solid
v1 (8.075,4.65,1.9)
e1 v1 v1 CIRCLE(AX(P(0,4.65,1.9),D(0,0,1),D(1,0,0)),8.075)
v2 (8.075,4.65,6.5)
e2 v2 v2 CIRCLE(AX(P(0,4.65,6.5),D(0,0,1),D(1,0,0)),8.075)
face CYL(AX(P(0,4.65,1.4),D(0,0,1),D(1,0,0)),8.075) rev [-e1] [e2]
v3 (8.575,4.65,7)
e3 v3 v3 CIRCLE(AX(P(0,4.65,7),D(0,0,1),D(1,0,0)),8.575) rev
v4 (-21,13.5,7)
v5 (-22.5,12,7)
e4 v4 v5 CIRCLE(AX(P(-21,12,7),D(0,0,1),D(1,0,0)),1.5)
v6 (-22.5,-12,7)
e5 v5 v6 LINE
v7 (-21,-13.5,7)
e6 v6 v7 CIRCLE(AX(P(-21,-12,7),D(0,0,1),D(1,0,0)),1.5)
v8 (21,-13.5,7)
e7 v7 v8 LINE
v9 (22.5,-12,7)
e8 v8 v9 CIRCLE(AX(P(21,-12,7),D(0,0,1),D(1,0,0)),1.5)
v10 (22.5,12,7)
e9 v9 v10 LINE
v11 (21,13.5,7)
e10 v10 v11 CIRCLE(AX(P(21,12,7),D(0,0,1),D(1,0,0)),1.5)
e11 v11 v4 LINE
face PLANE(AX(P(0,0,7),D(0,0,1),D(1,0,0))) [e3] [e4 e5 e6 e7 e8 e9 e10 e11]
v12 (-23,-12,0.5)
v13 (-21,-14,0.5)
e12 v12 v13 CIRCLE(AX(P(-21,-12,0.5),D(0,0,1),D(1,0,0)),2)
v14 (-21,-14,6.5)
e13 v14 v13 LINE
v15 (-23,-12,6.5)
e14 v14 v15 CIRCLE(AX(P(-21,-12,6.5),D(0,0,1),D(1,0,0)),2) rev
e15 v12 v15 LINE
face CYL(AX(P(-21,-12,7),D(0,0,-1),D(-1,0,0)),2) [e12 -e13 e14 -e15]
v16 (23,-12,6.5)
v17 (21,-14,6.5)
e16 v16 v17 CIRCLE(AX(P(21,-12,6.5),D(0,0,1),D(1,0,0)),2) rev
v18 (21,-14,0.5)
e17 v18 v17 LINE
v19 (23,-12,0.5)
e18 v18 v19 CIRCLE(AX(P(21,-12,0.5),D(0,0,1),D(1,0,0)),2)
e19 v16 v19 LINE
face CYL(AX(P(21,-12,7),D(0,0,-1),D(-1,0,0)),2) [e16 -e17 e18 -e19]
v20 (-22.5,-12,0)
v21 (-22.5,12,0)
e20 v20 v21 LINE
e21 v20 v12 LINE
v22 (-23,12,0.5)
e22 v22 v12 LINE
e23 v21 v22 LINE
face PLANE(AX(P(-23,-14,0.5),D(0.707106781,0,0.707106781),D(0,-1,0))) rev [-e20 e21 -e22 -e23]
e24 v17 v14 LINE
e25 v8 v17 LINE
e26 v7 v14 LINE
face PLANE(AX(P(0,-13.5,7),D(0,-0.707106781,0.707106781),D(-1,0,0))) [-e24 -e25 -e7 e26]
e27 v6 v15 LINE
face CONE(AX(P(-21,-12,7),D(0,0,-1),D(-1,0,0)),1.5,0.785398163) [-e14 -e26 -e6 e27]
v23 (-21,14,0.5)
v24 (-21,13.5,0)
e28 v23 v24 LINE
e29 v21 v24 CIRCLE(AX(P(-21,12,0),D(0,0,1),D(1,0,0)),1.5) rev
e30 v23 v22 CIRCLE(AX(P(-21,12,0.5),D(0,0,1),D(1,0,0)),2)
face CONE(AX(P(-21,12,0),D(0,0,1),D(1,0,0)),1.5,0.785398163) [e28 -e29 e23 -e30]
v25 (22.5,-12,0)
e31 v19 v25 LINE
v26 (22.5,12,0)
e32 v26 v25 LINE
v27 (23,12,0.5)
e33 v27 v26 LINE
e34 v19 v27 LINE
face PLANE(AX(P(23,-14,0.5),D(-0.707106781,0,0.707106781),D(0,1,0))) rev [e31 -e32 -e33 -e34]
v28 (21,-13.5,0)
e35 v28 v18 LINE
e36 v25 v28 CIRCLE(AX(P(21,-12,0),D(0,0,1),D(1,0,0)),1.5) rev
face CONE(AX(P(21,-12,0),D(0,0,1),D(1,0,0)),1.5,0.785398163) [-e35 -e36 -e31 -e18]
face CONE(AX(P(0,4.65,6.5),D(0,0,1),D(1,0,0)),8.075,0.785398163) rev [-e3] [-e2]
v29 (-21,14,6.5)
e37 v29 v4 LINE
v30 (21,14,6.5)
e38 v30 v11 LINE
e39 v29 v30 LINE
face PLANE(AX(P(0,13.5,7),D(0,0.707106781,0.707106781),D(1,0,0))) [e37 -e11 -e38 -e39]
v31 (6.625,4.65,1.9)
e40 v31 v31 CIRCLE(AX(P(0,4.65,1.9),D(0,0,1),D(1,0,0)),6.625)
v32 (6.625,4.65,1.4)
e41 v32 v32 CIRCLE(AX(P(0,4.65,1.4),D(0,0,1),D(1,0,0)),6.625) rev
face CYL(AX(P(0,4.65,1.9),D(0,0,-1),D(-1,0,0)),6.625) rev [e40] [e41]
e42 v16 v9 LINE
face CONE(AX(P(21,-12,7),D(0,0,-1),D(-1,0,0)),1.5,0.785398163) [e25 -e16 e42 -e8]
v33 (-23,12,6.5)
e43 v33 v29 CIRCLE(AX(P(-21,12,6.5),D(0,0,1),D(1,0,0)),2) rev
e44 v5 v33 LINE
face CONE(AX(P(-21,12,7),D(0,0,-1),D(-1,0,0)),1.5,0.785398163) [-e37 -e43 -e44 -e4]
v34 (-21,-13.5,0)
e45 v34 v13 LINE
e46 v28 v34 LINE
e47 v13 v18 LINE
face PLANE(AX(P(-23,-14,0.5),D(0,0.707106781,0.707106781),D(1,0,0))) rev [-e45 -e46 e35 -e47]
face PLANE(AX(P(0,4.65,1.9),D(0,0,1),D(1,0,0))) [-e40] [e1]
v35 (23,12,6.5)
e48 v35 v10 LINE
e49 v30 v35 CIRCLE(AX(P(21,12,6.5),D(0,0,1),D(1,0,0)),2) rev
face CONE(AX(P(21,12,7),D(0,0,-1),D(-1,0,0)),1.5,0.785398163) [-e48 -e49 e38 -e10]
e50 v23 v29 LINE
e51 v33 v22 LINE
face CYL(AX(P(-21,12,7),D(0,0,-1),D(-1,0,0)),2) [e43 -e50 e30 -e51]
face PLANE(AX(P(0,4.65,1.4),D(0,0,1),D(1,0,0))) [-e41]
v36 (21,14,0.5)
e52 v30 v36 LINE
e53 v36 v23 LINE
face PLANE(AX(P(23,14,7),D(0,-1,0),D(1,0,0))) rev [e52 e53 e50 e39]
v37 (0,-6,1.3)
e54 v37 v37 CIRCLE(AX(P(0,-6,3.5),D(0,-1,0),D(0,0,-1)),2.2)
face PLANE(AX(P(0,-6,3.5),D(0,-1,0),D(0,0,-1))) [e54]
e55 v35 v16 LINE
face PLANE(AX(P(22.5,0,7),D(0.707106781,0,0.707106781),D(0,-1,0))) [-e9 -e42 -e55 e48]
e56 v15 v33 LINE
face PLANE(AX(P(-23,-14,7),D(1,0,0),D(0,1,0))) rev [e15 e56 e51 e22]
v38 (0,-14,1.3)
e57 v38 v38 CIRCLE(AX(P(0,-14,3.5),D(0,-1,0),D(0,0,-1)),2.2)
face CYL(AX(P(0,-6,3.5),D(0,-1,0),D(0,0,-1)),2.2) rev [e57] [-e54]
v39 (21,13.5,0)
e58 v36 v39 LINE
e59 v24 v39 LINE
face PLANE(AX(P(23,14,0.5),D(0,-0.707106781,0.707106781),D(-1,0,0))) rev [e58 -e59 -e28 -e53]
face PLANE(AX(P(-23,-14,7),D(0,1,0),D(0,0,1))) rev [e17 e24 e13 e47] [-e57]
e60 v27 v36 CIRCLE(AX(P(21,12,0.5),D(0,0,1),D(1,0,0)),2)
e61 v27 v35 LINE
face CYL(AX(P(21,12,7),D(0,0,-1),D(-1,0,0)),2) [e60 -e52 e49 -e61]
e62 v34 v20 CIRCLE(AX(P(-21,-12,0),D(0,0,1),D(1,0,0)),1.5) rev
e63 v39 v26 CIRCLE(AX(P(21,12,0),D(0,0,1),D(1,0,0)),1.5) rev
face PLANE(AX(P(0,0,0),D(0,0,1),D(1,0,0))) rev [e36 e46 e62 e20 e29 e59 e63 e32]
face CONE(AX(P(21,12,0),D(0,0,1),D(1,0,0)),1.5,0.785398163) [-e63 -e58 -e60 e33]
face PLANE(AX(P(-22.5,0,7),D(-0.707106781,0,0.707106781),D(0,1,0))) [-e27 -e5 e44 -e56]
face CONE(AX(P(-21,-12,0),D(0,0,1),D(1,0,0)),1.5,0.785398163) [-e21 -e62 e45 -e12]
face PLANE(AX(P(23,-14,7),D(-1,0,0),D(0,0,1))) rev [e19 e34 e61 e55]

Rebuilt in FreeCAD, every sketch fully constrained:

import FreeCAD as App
import Part
import Sketcher
from FreeCAD import Vector


def edges_at(feature, points):
    """Names of the edges that pass closest to the given points."""
    edges = feature.Shape.Edges
    near = lambda p: min(range(len(edges)), key=lambda i: edges[i].distToShape(Part.Vertex(*p))[0])
    return sorted({f"Edge{near(p) + 1}" for p in points})

doc = App.newDocument("Part")
body = doc.addObject("PartDesign::Body", "Body")

# Sketch on XY plane
sketch1 = body.newObject("Sketcher::SketchObject", "Sketch")
sketch1.AttachmentSupport = (doc.getObject("XY_Plane"), [""])
sketch1.MapMode = "FlatFace"
sketch1.addGeometry([
    Part.LineSegment(Vector(-23, 14, 0), Vector(-23, -14, 0)),
    Part.LineSegment(Vector(-23, -14, 0), Vector(23, -14, 0)),
    Part.LineSegment(Vector(23, -14, 0), Vector(23, 14, 0)),
    Part.LineSegment(Vector(23, 14, 0), Vector(-23, 14, 0)),
], False)
sketch1.addConstraint([
    Sketcher.Constraint("Coincident", 0, 2, 1, 1),
    Sketcher.Constraint("Coincident", 1, 2, 2, 1),
    Sketcher.Constraint("Coincident", 2, 2, 3, 1),
    Sketcher.Constraint("Coincident", 3, 2, 0, 1),
    Sketcher.Constraint("Vertical", 0),
    Sketcher.Constraint("Horizontal", 1),
    Sketcher.Constraint("Vertical", 2),
    Sketcher.Constraint("Horizontal", 3),
    Sketcher.Constraint("Symmetric", 0, 2, 2, 2, -1, 1),
    Sketcher.Constraint("DistanceX", 1, 1, 1, 2, 46.0),
    Sketcher.Constraint("DistanceY", 0, 2, 0, 1, 28.0),
])
pad1 = body.newObject("PartDesign::Pad", "Pad")
pad1.Profile = sketch1
pad1.Length = 7

# Sketch on XY plane
sketch2 = body.newObject("Sketcher::SketchObject", "Sketch001")
sketch2.AttachmentSupport = (doc.getObject("XY_Plane"), [""])
sketch2.MapMode = "FlatFace"
sketch2.AttachmentOffset = App.Placement(Vector(0, 0, 7), App.Rotation())
sketch2.addGeometry(Part.Circle(Vector(0, 5, 0), Vector(0, 0, 1), 8), False)
sketch2.addConstraint([
    Sketcher.Constraint("PointOnObject", 0, 3, -2),
    Sketcher.Constraint("Diameter", 0, 16.15),
    Sketcher.Constraint("DistanceY", -1, 1, 0, 3, 4.65),
])
pocket1 = body.newObject("PartDesign::Pocket", "Pocket")
pocket1.Profile = sketch2
pocket1.Length = 5.6

# Sketch on XY plane
sketch3 = body.newObject("Sketcher::SketchObject", "Sketch002")
sketch3.AttachmentSupport = (doc.getObject("XY_Plane"), [""])
sketch3.MapMode = "FlatFace"
sketch3.AttachmentOffset = App.Placement(Vector(0, 0, 1.9), App.Rotation())
sketch3.addGeometry([
    Part.Circle(Vector(0, 5, 0), Vector(0, 0, 1), 8),
    Part.Circle(Vector(0, 5, 0), Vector(0, 0, 1), 7),
], False)
sketch3.addConstraint([
    Sketcher.Constraint("Coincident", 1, 3, 0, 3),
    Sketcher.Constraint("PointOnObject", 0, 3, -2),
    Sketcher.Constraint("Diameter", 0, 16.15),
    Sketcher.Constraint("Diameter", 1, 13.25),
    Sketcher.Constraint("DistanceY", -1, 1, 0, 3, 4.65),
])
pad2 = body.newObject("PartDesign::Pad", "Pad001")
pad2.Profile = sketch3
pad2.Length = 0.5
pad2.Reversed = True
doc.recompute()

fillet = body.newObject("PartDesign::Fillet", "Fillet")
fillet.Base = (pad2, edges_at(pad2, [
    (23, -14, 3.5),
    (-23, -14, 3.5),
    (-23, 14, 3.5),
    (23, 14, 3.5),
]))
fillet.Radius = 2

# Sketch on XZ plane
sketch4 = body.newObject("Sketcher::SketchObject", "Sketch003")
sketch4.AttachmentSupport = (doc.getObject("XZ_Plane"), [""])
sketch4.MapMode = "FlatFace"
sketch4.AttachmentOffset = App.Placement(Vector(0, 0, 14), App.Rotation())
sketch4.addGeometry(Part.Circle(Vector(0, 3.5, 0), Vector(0, 0, 1), 2.2), False)
sketch4.addConstraint([
    Sketcher.Constraint("PointOnObject", 0, 3, -2),
    Sketcher.Constraint("Diameter", 0, 4.4),
    Sketcher.Constraint("DistanceY", -1, 1, 0, 3, 3.5),
])
pocket2 = body.newObject("PartDesign::Pocket", "Pocket001")
pocket2.Profile = sketch4
pocket2.Length = 8
doc.recompute()

chamfer = body.newObject("PartDesign::Chamfer", "Chamfer")
chamfer.Base = (pocket2, edges_at(pocket2, [
    (-8.075, 4.65, 7),
    (0, 14, 0),
    (0, 14, 7),
    (23, 0, 0),
    (0, -14, 0),
    (-23, 0, 0),
    (-22.414, -13.414, 0),
    (-22.414, 13.414, 0),
    (22.414, -13.414, 0),
    (22.414, 13.414, 0),
    (23, 0, 7),
    (-23, 0, 7),
    (0, -14, 7),
    (-22.414, -13.414, 7),
    (-22.414, 13.414, 7),
    (22.414, -13.414, 7),
    (22.414, 13.414, 7),
]))
chamfer.Size = 0.5

doc.recompute()
